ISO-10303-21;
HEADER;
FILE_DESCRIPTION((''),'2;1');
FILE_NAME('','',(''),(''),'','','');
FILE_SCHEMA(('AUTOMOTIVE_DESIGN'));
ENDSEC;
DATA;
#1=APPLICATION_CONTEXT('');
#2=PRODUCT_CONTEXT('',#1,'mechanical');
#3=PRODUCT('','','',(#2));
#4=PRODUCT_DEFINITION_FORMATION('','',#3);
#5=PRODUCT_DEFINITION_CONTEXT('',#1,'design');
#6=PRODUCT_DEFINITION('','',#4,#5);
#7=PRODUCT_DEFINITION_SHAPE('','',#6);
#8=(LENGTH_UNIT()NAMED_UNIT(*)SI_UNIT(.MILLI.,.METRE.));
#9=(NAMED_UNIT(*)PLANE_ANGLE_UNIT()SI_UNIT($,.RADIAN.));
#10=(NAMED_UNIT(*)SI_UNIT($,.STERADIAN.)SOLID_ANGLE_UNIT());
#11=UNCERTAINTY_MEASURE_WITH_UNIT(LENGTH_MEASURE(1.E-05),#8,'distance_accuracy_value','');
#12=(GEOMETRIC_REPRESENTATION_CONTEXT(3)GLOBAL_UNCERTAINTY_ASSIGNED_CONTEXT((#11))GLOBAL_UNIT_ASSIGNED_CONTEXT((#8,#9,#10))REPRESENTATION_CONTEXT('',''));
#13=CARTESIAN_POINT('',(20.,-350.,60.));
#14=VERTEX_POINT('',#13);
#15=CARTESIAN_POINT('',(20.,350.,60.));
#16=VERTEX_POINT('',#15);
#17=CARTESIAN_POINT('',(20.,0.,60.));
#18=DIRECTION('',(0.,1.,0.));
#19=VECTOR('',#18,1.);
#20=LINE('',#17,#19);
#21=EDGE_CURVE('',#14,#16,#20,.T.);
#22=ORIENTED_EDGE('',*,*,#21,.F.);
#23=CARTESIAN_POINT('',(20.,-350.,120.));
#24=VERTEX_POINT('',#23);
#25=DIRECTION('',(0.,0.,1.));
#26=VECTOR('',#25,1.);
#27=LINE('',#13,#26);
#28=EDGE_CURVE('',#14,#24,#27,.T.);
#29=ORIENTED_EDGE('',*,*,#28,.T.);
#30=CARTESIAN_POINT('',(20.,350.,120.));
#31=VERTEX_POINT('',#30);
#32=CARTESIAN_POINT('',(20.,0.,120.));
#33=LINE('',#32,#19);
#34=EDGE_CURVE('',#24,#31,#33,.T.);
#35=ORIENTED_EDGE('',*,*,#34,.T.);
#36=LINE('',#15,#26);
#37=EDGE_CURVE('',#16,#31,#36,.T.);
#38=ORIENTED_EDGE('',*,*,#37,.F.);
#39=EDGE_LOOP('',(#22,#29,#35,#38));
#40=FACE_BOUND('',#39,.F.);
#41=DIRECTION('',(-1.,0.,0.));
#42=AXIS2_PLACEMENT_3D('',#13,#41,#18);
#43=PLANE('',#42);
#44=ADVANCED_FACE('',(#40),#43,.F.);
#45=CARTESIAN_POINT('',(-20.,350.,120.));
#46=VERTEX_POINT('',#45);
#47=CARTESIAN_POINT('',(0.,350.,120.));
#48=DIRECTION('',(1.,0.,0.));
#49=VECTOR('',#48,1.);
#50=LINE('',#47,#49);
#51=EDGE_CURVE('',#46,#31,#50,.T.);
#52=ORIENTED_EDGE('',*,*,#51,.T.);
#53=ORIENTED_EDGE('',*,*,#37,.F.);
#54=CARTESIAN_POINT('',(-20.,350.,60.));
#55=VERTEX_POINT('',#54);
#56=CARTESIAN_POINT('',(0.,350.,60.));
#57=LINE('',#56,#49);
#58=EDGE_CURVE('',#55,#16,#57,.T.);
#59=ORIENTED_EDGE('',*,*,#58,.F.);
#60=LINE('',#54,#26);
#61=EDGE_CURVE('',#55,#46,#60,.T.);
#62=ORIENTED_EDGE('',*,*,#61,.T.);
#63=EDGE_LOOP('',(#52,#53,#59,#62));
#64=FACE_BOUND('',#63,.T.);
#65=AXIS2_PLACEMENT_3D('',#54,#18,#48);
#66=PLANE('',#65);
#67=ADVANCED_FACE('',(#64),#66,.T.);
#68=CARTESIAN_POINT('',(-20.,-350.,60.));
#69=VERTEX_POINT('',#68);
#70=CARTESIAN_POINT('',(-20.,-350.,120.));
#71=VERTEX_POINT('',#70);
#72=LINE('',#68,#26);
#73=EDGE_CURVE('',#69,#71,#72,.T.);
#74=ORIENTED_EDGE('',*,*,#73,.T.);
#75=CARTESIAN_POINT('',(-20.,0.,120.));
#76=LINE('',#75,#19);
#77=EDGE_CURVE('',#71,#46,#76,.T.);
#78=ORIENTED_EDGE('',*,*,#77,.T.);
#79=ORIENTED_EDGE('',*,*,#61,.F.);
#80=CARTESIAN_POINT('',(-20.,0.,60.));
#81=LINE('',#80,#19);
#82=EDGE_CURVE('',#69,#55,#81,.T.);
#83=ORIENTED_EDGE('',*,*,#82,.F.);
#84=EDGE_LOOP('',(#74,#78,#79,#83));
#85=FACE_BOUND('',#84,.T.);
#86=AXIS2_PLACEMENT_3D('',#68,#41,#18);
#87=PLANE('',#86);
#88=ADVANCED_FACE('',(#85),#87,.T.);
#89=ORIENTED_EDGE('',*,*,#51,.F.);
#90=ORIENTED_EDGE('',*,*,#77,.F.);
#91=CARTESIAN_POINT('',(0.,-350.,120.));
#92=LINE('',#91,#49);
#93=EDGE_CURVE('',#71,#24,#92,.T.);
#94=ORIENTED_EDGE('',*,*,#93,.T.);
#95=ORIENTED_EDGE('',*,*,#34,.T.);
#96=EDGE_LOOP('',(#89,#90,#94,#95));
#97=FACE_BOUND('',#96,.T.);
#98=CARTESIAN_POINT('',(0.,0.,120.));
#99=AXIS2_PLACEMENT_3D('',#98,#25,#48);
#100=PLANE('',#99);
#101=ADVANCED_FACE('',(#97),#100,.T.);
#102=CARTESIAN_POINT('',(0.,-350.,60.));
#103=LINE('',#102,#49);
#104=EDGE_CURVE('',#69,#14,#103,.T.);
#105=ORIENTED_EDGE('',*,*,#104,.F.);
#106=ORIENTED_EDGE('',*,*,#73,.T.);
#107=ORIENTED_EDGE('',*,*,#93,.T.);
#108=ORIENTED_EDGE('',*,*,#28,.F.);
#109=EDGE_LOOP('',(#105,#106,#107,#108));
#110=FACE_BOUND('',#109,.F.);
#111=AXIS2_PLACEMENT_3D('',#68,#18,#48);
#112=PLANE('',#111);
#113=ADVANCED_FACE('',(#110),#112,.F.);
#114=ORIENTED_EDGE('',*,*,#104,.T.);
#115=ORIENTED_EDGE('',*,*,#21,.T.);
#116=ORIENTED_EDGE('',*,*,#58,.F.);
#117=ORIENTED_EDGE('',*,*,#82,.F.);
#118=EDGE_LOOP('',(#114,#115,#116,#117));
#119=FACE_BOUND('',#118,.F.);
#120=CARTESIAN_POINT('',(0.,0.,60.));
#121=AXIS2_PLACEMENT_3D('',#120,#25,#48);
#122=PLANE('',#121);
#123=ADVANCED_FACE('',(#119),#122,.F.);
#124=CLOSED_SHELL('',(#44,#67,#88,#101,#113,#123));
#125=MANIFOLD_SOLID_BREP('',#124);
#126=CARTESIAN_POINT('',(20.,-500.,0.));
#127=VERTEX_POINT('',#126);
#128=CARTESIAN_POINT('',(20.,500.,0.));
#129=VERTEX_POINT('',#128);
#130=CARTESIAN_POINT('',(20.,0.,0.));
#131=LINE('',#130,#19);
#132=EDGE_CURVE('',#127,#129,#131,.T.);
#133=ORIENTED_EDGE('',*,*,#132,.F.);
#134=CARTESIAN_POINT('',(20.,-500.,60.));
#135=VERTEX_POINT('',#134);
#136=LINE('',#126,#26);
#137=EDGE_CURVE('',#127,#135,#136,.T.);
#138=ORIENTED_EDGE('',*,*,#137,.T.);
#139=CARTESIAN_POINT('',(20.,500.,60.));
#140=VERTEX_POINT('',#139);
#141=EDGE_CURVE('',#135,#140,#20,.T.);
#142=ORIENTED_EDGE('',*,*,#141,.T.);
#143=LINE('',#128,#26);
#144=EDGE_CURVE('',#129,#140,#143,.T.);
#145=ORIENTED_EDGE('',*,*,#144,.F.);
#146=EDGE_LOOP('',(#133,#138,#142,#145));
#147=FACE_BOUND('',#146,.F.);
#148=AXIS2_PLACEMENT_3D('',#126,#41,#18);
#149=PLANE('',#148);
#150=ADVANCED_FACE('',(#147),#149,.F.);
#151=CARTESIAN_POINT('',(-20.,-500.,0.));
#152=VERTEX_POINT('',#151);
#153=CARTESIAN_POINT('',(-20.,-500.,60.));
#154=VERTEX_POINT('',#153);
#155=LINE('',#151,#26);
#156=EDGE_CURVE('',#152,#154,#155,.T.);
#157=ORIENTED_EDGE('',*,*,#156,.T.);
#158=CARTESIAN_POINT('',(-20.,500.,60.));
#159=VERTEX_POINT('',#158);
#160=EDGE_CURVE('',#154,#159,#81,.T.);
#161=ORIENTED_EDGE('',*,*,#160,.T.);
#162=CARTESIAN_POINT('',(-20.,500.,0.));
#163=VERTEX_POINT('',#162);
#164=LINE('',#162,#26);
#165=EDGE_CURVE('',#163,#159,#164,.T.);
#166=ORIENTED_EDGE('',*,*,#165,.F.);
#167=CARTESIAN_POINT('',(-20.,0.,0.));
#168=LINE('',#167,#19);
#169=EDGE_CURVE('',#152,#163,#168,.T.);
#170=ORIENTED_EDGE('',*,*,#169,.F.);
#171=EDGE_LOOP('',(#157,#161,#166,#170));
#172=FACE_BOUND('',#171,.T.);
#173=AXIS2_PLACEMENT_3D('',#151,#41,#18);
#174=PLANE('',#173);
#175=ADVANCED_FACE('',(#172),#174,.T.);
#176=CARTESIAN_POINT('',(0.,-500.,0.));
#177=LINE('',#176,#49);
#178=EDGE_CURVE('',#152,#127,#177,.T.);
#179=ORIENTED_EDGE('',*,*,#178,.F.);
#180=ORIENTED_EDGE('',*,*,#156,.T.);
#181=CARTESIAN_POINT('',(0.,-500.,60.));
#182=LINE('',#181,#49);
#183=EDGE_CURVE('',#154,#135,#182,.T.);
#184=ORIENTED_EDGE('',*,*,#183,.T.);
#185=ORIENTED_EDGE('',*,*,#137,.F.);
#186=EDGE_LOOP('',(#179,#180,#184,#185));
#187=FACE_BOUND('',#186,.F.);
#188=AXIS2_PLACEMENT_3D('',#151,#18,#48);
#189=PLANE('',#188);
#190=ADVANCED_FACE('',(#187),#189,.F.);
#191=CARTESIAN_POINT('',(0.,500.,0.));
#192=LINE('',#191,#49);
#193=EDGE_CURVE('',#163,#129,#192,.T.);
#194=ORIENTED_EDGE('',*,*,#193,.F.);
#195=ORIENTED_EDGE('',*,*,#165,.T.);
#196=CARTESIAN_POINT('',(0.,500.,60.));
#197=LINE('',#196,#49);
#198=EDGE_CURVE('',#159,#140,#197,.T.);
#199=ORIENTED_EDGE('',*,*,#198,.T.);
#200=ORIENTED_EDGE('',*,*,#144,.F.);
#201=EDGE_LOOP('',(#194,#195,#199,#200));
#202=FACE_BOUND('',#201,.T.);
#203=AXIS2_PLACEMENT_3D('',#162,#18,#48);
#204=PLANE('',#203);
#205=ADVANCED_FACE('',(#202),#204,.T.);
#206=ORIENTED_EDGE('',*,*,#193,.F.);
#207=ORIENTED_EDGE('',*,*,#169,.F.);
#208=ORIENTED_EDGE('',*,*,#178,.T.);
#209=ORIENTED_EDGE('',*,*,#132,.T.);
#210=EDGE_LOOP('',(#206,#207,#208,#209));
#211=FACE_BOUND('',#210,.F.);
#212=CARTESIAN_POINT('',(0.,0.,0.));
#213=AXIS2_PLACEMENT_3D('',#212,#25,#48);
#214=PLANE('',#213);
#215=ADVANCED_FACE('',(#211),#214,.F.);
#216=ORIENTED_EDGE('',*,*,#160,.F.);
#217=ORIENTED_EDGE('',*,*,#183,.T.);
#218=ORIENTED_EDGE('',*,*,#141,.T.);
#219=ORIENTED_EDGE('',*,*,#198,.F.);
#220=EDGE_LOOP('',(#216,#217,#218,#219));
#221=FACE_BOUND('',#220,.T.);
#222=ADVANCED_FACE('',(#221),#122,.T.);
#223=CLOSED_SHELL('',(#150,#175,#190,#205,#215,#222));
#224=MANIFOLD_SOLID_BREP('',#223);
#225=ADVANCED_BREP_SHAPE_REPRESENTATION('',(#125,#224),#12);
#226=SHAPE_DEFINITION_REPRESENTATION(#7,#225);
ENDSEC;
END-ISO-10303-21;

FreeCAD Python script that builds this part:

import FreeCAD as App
import Part
import Sketcher


def add_polygon(sketch, points):
    """Adds a closed chain of lines whose ends are joined by coincident constraints."""
    first, n = sketch.GeometryCount, len(points)
    for a, b in zip(points, points[1:] + points[:1]):
        sketch.addGeometry(Part.LineSegment(App.Vector(*a, 0), App.Vector(*b, 0)), False)
    for i in range(n):
        sketch.addConstraint(Sketcher.Constraint("Coincident", first + i, 2, first + (i + 1) % n, 1))

doc = App.newDocument("Part")
params = doc.addObject("Spreadsheet::Sheet", "Params")
for row, (alias, value) in enumerate([
    ("sketch1_width", "40 mm"),
    ("sketch1_height", "1000 mm"),
    ("pad1_length", "60 mm"),
    ("sketch2_width", "40 mm"),
    ("sketch2_height", "700 mm"),
    ("pad2_length", "60 mm"),
], start=1):
    params.set(f"A{row}", alias)
    params.set(f"B{row}", "=" + value)
    params.setAlias(f"B{row}", alias)

body = doc.addObject("PartDesign::Body", "Body")

# Sketch on XY plane
sketch1 = body.newObject("Sketcher::SketchObject", "Sketch")
sketch1.AttachmentSupport = (doc.getObject("XY_Plane"), [""])
sketch1.MapMode = "FlatFace"
add_polygon(sketch1, [(-20, 500), (-20, -500), (20, -500), (20, 500)])  # lines 0-3
sketch1.addConstraint(Sketcher.Constraint("Vertical", 0))
sketch1.addConstraint(Sketcher.Constraint("Horizontal", 1))
sketch1.addConstraint(Sketcher.Constraint("Vertical", 2))
sketch1.addConstraint(Sketcher.Constraint("Horizontal", 3))
sketch1.addConstraint(Sketcher.Constraint("Symmetric", 0, 2, 2, 2, -1, 1))
sketch1.addConstraint(Sketcher.Constraint("DistanceX", 1, 1, 1, 2, 40.0))
sketch1.addConstraint(Sketcher.Constraint("DistanceY", 0, 2, 0, 1, 1000.0))
sketch1.setExpression("Constraints[9]", "Params.sketch1_width")
sketch1.setExpression("Constraints[10]", "Params.sketch1_height")
pad1 = body.newObject("PartDesign::Pad", "Pad")
pad1.Profile = sketch1
pad1.setExpression("Length", "Params.pad1_length")
body2 = doc.addObject("PartDesign::Body", "Body001")

# Sketch on XY plane
sketch2 = body2.newObject("Sketcher::SketchObject", "Sketch001")
sketch2.AttachmentSupport = (doc.getObject("XY_Plane001"), [""])
sketch2.MapMode = "FlatFace"
sketch2.AttachmentOffset = App.Placement(App.Vector(0, 0, 60), App.Rotation())
add_polygon(sketch2, [(-20, 350), (-20, -350), (20, -350), (20, 350)])  # lines 0-3
sketch2.addConstraint(Sketcher.Constraint("Vertical", 0))
sketch2.addConstraint(Sketcher.Constraint("Horizontal", 1))
sketch2.addConstraint(Sketcher.Constraint("Vertical", 2))
sketch2.addConstraint(Sketcher.Constraint("Horizontal", 3))
sketch2.addConstraint(Sketcher.Constraint("Symmetric", 0, 2, 2, 2, -1, 1))
sketch2.addConstraint(Sketcher.Constraint("DistanceX", 1, 1, 1, 2, 40.0))
sketch2.addConstraint(Sketcher.Constraint("DistanceY", 0, 2, 0, 1, 700.0))
sketch2.setExpression("Constraints[9]", "Params.sketch2_width")
sketch2.setExpression("Constraints[10]", "Params.sketch2_height")
pad2 = body2.newObject("PartDesign::Pad", "Pad001")
pad2.Profile = sketch2
pad2.setExpression("Length", "Params.pad2_length")

doc.recompute()
